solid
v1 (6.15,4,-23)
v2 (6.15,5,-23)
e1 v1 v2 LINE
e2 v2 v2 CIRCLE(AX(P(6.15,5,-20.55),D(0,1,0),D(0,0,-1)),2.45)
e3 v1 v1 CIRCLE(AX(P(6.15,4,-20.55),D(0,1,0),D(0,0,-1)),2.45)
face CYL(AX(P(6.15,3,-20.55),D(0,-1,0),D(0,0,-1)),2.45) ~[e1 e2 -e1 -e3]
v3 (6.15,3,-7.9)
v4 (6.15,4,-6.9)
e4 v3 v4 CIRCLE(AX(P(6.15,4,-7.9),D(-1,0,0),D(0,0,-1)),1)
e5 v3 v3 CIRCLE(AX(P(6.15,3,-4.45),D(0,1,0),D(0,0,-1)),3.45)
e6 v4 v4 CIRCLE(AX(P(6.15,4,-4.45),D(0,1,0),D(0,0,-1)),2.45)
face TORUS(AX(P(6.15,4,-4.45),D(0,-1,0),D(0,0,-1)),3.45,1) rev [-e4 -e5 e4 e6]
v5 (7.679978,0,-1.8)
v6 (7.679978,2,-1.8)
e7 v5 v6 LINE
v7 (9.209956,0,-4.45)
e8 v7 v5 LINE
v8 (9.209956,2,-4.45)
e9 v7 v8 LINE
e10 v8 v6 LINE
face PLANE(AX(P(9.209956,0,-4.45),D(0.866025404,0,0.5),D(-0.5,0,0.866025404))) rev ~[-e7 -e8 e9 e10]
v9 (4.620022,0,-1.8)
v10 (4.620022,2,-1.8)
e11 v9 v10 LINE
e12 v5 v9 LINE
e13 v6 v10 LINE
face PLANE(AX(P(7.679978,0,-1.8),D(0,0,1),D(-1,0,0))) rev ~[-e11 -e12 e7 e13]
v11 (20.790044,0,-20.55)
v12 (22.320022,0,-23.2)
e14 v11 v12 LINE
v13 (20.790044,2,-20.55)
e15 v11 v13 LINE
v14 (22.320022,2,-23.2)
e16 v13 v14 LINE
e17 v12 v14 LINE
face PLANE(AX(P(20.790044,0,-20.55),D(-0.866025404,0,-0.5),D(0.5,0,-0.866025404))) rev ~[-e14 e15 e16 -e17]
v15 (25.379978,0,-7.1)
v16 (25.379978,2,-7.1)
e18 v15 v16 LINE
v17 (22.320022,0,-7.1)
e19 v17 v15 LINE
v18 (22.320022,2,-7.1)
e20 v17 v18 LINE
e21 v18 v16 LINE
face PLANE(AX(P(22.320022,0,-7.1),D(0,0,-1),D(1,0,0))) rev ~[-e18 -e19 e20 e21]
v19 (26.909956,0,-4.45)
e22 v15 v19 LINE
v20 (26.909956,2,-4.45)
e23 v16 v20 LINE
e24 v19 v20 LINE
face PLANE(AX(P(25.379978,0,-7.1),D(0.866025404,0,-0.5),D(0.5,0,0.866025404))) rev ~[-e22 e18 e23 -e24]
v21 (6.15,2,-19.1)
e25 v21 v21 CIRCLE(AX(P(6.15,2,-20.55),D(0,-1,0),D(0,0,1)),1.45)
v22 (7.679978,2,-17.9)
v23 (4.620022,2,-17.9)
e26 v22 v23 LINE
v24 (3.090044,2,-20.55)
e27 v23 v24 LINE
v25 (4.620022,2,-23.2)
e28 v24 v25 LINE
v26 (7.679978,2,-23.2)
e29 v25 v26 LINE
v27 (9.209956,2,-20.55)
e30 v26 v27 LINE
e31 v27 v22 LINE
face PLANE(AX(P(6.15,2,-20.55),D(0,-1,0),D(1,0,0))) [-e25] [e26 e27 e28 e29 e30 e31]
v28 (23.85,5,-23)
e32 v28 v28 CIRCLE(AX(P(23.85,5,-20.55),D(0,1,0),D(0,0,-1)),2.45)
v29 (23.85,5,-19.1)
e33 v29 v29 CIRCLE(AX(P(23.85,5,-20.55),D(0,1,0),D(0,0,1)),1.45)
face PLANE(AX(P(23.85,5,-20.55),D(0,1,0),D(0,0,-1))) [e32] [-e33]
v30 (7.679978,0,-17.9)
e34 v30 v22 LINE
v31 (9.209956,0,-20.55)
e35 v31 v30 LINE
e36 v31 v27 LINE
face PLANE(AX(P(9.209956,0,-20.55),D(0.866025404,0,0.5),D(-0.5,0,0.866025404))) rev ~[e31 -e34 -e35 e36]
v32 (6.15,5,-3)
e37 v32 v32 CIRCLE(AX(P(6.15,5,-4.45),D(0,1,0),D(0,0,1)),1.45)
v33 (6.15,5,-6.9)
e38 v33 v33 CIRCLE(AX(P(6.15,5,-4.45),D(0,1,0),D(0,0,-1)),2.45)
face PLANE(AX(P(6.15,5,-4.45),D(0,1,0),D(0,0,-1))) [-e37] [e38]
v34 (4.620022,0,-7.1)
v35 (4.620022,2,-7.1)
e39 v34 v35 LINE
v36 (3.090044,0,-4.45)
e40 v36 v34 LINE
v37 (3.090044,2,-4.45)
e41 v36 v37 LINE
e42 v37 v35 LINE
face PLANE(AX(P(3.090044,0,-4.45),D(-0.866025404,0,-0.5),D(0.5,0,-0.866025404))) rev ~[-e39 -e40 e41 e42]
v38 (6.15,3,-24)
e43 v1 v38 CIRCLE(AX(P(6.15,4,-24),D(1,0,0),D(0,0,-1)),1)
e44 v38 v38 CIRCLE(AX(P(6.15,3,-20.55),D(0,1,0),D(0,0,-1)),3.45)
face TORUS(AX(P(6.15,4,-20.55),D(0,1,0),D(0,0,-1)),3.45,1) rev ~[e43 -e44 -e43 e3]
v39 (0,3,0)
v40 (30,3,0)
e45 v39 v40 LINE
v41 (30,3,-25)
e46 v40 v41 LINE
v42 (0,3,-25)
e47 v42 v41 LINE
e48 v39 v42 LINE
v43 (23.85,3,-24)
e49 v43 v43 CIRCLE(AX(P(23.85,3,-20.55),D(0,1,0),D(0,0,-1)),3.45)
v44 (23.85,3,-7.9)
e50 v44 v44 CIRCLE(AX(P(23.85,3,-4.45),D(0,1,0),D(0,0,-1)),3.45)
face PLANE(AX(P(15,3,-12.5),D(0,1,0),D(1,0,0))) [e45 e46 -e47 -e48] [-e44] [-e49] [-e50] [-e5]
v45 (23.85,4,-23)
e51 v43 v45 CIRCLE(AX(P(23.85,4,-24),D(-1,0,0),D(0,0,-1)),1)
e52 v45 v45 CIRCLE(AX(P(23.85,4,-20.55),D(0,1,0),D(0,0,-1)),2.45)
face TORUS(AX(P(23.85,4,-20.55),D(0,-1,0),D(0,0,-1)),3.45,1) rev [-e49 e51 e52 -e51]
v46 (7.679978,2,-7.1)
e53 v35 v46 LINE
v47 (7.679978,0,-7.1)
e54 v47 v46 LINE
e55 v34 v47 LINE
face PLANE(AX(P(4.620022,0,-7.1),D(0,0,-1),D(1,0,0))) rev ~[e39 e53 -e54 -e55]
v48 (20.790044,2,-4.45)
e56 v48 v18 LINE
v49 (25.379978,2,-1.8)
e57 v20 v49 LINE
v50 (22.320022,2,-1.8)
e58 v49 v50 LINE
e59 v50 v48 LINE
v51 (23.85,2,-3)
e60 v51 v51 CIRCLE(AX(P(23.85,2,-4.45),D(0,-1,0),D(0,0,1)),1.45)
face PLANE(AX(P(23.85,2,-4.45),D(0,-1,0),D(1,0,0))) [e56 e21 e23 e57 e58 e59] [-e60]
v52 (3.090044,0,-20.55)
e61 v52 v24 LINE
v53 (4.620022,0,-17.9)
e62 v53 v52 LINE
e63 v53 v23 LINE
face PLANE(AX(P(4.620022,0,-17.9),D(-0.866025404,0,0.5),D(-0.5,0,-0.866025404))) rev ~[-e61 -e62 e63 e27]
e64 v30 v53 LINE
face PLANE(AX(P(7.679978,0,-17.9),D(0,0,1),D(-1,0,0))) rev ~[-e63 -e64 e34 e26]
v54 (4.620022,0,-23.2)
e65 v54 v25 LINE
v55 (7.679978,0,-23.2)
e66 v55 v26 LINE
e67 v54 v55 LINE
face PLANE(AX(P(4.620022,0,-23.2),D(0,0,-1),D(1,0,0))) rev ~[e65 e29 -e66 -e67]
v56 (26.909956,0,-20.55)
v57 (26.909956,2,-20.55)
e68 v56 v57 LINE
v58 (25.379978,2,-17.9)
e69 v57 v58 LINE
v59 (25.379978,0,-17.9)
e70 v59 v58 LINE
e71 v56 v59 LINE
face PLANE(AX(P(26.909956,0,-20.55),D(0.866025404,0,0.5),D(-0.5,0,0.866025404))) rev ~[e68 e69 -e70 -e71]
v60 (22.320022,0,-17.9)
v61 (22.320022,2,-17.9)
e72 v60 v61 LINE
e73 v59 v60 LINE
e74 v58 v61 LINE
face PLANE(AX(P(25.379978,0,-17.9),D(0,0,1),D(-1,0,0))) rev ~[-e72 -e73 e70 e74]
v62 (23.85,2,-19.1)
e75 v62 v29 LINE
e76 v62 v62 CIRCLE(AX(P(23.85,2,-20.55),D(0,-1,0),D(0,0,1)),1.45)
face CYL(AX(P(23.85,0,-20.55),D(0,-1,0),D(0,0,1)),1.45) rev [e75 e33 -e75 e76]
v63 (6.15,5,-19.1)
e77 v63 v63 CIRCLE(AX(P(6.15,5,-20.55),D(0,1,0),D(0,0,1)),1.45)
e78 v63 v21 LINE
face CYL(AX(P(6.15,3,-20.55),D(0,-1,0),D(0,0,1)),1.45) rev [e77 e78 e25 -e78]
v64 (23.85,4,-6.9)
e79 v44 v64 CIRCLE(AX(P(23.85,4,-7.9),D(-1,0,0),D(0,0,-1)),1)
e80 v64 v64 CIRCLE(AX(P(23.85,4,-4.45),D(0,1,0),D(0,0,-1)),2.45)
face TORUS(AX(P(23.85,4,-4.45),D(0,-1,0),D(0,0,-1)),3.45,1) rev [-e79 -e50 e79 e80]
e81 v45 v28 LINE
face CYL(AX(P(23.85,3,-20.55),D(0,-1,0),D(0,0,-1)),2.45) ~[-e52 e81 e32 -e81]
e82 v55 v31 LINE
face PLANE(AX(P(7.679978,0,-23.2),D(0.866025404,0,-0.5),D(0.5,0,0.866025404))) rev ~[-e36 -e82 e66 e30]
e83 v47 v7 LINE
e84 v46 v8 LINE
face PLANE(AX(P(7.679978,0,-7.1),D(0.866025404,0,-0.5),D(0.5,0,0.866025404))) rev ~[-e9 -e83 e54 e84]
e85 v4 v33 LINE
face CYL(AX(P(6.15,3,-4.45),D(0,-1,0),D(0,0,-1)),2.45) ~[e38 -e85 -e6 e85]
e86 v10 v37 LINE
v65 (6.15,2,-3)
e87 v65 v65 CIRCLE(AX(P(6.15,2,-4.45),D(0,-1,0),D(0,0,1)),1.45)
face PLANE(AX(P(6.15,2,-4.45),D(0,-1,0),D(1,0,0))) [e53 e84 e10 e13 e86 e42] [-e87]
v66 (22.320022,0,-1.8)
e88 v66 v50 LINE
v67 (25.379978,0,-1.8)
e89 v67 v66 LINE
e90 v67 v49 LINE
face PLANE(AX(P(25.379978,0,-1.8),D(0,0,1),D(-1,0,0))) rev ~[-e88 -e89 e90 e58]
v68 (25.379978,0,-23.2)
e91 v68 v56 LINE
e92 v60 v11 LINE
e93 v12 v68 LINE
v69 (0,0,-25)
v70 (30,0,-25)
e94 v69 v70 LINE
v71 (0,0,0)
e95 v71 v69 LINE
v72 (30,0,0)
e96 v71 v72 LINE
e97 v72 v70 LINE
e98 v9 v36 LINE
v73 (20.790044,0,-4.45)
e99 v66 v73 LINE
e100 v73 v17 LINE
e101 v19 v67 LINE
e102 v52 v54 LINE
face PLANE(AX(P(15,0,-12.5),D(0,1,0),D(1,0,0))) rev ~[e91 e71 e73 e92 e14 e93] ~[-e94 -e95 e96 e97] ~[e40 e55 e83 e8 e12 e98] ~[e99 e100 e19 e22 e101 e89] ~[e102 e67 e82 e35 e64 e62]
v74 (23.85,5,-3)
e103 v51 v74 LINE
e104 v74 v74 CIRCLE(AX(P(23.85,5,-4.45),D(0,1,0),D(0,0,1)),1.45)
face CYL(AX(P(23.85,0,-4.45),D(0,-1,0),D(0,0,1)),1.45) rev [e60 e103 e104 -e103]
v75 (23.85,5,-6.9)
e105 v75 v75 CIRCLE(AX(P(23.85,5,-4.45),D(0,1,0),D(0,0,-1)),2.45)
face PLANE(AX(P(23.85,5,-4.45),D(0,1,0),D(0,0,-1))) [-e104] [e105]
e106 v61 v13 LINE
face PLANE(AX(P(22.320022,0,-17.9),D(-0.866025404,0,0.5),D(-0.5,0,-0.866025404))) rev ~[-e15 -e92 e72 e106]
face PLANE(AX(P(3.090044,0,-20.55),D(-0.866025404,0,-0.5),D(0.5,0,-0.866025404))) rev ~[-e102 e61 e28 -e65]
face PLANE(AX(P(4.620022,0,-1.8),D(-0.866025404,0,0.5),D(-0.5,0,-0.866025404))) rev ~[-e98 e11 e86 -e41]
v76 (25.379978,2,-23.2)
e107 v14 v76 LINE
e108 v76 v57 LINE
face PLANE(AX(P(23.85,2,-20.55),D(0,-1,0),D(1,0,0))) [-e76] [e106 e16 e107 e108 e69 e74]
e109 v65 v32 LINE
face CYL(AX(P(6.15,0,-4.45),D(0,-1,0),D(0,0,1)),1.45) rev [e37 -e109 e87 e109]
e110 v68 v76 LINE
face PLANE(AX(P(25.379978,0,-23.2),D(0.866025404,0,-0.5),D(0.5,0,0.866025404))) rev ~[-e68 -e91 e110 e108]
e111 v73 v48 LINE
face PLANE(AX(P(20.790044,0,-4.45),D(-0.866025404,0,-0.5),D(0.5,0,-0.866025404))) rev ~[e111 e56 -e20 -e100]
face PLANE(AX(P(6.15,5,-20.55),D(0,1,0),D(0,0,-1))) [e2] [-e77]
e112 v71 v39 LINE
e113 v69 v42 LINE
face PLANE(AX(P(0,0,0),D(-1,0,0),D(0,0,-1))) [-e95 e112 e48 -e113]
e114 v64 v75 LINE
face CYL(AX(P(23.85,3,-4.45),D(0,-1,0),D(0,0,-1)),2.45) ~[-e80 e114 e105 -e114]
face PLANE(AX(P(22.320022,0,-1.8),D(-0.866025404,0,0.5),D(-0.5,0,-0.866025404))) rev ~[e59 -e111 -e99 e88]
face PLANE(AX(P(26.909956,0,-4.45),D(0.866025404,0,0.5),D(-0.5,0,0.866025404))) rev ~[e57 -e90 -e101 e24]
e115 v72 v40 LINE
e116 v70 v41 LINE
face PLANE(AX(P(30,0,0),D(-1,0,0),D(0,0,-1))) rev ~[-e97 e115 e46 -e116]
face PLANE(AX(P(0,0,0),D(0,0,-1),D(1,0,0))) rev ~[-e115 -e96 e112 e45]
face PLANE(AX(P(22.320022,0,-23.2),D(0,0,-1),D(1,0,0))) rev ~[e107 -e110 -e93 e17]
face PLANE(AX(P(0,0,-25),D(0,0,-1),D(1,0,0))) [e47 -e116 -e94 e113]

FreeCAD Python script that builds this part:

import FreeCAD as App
import Part
import Sketcher

V = App.Vector
Q = App.Units.Quantity


def edges_at(feature, points):
    """Names of the edges that pass closest to the given points."""
    edges = feature.Shape.Edges
    near = lambda p: min(range(len(edges)), key=lambda i: edges[i].distToShape(Part.Vertex(*p))[0])
    return sorted({f"Edge{near(p) + 1}" for p in points})

doc = App.newDocument("Part")
body = doc.addObject("PartDesign::Body", "Body")

sketch1 = body.newObject("Sketcher::SketchObject", "Sketch")
sketch1.AttachmentSupport = (doc.getObject("XZ_Plane"), [""])
sketch1.MapMode = "FlatFace"
sketch1.addGeometry([
    Part.LineSegment(V(0, -25, 0), V(0, 0, 0)),
    Part.LineSegment(V(0, 0, 0), V(30, 0, 0)),
    Part.LineSegment(V(30, 0, 0), V(30, -25, 0)),
    Part.LineSegment(V(30, -25, 0), V(0, -25, 0)),
    Part.Circle(V(6.2, -4.5, 0), V(0, 0, 1), 1.4),
    Part.Circle(V(23.9, -4.5, 0), V(0, 0, 1), 1.4),
    Part.Circle(V(6.2, -20.6, 0), V(0, 0, 1), 1.4),
    Part.Circle(V(23.9, -20.6, 0), V(0, 0, 1), 1.4),
], False)
sketch1.addConstraint([
    Sketcher.Constraint("Coincident", 0, 2, 1, 1),
    Sketcher.Constraint("Coincident", 1, 2, 2, 1),
    Sketcher.Constraint("Coincident", 2, 2, 3, 1),
    Sketcher.Constraint("Coincident", 3, 2, 0, 1),
    Sketcher.Constraint("Vertical", 0),
    Sketcher.Constraint("Horizontal", 1),
    Sketcher.Constraint("Vertical", 2),
    Sketcher.Constraint("Horizontal", 3),
    Sketcher.Constraint("Coincident", 0, 2, -1, 1),
    Sketcher.Constraint("Equal", 4, 5),
    Sketcher.Constraint("Equal", 5, 6),
    Sketcher.Constraint("Equal", 6, 7),
    Sketcher.Constraint("Horizontal", 4, 3, 5, 3),
    Sketcher.Constraint("Horizontal", 6, 3, 7, 3),
    Sketcher.Constraint("Vertical", 4, 3, 6, 3),
    Sketcher.Constraint("Vertical", 5, 3, 7, 3),
    Sketcher.Constraint("Diameter", 4, Q("2.9 mm")),
    Sketcher.Constraint("DistanceX", 1, 1, 1, 2, Q("30 mm")),
    Sketcher.Constraint("DistanceY", 0, 1, 0, 2, Q("25 mm")),
    Sketcher.Constraint("DistanceX", 4, 3, 5, 3, Q("17.7 mm")),
    Sketcher.Constraint("DistanceY", 6, 3, 4, 3, Q("16.1 mm")),
    Sketcher.Constraint("DistanceX", -1, 1, 4, 3, Q("6.15 mm")),
    Sketcher.Constraint("DistanceY", 4, 3, -1, 1, Q("4.45 mm")),
])
pad1 = body.newObject("PartDesign::Pad", "Pad")
pad1.Profile = sketch1
pad1.Length = 3
pad1.Reversed = True

sketch2 = body.newObject("Sketcher::SketchObject", "Sketch001")
sketch2.AttachmentSupport = (doc.getObject("XZ_Plane"), [""])
sketch2.MapMode = "FlatFace"
sketch2.AttachmentOffset = App.Placement(V(0, 0, -3), App.Rotation())
sketch2.addGeometry([
    Part.Circle(V(6.2, -20.6, 0), V(0, 0, 1), 2.5),
    Part.Circle(V(6.2, -20.6, 0), V(0, 0, 1), 1.4),
    Part.Circle(V(23.9, -20.6, 0), V(0, 0, 1), 2.5),
    Part.Circle(V(23.9, -20.6, 0), V(0, 0, 1), 1.4),
    Part.Circle(V(6.2, -4.5, 0), V(0, 0, 1), 2.5),
    Part.Circle(V(6.2, -4.5, 0), V(0, 0, 1), 1.4),
    Part.Circle(V(23.9, -4.5, 0), V(0, 0, 1), 2.5),
    Part.Circle(V(23.9, -4.5, 0), V(0, 0, 1), 1.4),
], False)
sketch2.addConstraint([
    Sketcher.Constraint("Coincident", 1, 3, 0, 3),
    Sketcher.Constraint("Coincident", 3, 3, 2, 3),
    Sketcher.Constraint("Coincident", 5, 3, 4, 3),
    Sketcher.Constraint("Coincident", 7, 3, 6, 3),
    Sketcher.Constraint("Equal", 0, 2),
    Sketcher.Constraint("Equal", 1, 3),
    Sketcher.Constraint("Equal", 2, 4),
    Sketcher.Constraint("Equal", 3, 5),
    Sketcher.Constraint("Equal", 4, 6),
    Sketcher.Constraint("Equal", 5, 7),
    Sketcher.Constraint("Horizontal", 1, 3, 2, 3),
    Sketcher.Constraint("Horizontal", 5, 3, 6, 3),
    Sketcher.Constraint("Vertical", 1, 3, 4, 3),
    Sketcher.Constraint("Vertical", 3, 3, 6, 3),
    Sketcher.Constraint("Diameter", 0, Q("4.9 mm")),
    Sketcher.Constraint("Diameter", 1, Q("2.9 mm")),
    Sketcher.Constraint("DistanceX", 0, 3, 2, 3, Q("17.7 mm")),
    Sketcher.Constraint("DistanceY", 0, 3, 4, 3, Q("16.1 mm")),
    Sketcher.Constraint("DistanceX", -1, 1, 0, 3, Q("6.15 mm")),
    Sketcher.Constraint("DistanceY", 0, 3, -1, 1, Q("20.55 mm")),
])
pad2 = body.newObject("PartDesign::Pad", "Pad001")
pad2.Profile = sketch2
pad2.Length = 2
pad2.Reversed = True

sketch3 = body.newObject("Sketcher::SketchObject", "Sketch002")
sketch3.AttachmentSupport = (doc.getObject("XZ_Plane"), [""])
sketch3.MapMode = "FlatFace"
sketch3.addGeometry([
    Part.LineSegment(V(7.7, -7.1, 0), V(9.2, -4.5, 0)),
    Part.LineSegment(V(9.2, -4.5, 0), V(7.7, -1.8, 0)),
    Part.LineSegment(V(7.7, -1.8, 0), V(4.6, -1.8, 0)),
    Part.LineSegment(V(4.6, -1.8, 0), V(3.1, -4.5, 0)),
    Part.LineSegment(V(3.1, -4.5, 0), V(4.6, -7.1, 0)),
    Part.LineSegment(V(4.6, -7.1, 0), V(7.7, -7.1, 0)),
    Part.LineSegment(V(25.4, -7.1, 0), V(26.9, -4.5, 0)),
    Part.LineSegment(V(26.9, -4.5, 0), V(25.4, -1.8, 0)),
    Part.LineSegment(V(25.4, -1.8, 0), V(22.3, -1.8, 0)),
    Part.LineSegment(V(22.3, -1.8, 0), V(20.8, -4.5, 0)),
    Part.LineSegment(V(20.8, -4.5, 0), V(22.3, -7.1, 0)),
    Part.LineSegment(V(22.3, -7.1, 0), V(25.4, -7.1, 0)),
    Part.LineSegment(V(25.4, -23.2, 0), V(26.9, -20.6, 0)),
    Part.LineSegment(V(26.9, -20.6, 0), V(25.4, -17.9, 0)),
    Part.LineSegment(V(25.4, -17.9, 0), V(22.3, -17.9, 0)),
    Part.LineSegment(V(22.3, -17.9, 0), V(20.8, -20.6, 0)),
    Part.LineSegment(V(20.8, -20.6, 0), V(22.3, -23.2, 0)),
    Part.LineSegment(V(22.3, -23.2, 0), V(25.4, -23.2, 0)),
    Part.LineSegment(V(7.7, -23.2, 0), V(9.2, -20.6, 0)),
    Part.LineSegment(V(9.2, -20.6, 0), V(7.7, -17.9, 0)),
    Part.LineSegment(V(7.7, -17.9, 0), V(4.6, -17.9, 0)),
    Part.LineSegment(V(4.6, -17.9, 0), V(3.1, -20.6, 0)),
    Part.LineSegment(V(3.1, -20.6, 0), V(4.6, -23.2, 0)),
    Part.LineSegment(V(4.6, -23.2, 0), V(7.7, -23.2, 0)),
], False)
sketch3.addConstraint([
    Sketcher.Constraint("Coincident", 0, 2, 1, 1),
    Sketcher.Constraint("Coincident", 1, 2, 2, 1),
    Sketcher.Constraint("Coincident", 2, 2, 3, 1),
    Sketcher.Constraint("Coincident", 3, 2, 4, 1),
    Sketcher.Constraint("Coincident", 4, 2, 5, 1),
    Sketcher.Constraint("Coincident", 5, 2, 0, 1),
    Sketcher.Constraint("Coincident", 6, 2, 7, 1),
    Sketcher.Constraint("Coincident", 7, 2, 8, 1),
    Sketcher.Constraint("Coincident", 8, 2, 9, 1),
    Sketcher.Constraint("Coincident", 9, 2, 10, 1),
    Sketcher.Constraint("Coincident", 10, 2, 11, 1),
    Sketcher.Constraint("Coincident", 11, 2, 6, 1),
    Sketcher.Constraint("Coincident", 12, 2, 13, 1),
    Sketcher.Constraint("Coincident", 13, 2, 14, 1),
    Sketcher.Constraint("Coincident", 14, 2, 15, 1),
    Sketcher.Constraint("Coincident", 15, 2, 16, 1),
    Sketcher.Constraint("Coincident", 16, 2, 17, 1),
    Sketcher.Constraint("Coincident", 17, 2, 12, 1),
    Sketcher.Constraint("Coincident", 18, 2, 19, 1),
    Sketcher.Constraint("Coincident", 19, 2, 20, 1),
    Sketcher.Constraint("Coincident", 20, 2, 21, 1),
    Sketcher.Constraint("Coincident", 21, 2, 22, 1),
    Sketcher.Constraint("Coincident", 22, 2, 23, 1),
    Sketcher.Constraint("Coincident", 23, 2, 18, 1),
    Sketcher.Constraint("Horizontal", 2),
    Sketcher.Constraint("Horizontal", 5),
    Sketcher.Constraint("Horizontal", 8),
    Sketcher.Constraint("Horizontal", 11),
    Sketcher.Constraint("Horizontal", 14),
    Sketcher.Constraint("Horizontal", 17),
    Sketcher.Constraint("Horizontal", 20),
    Sketcher.Constraint("Horizontal", 23),
    Sketcher.Constraint("Parallel", 0, 3),
    Sketcher.Constraint("Parallel", 1, 4),
    Sketcher.Constraint("Parallel", 3, 6),
    Sketcher.Constraint("Parallel", 4, 7),
    Sketcher.Constraint("Parallel", 6, 9),
    Sketcher.Constraint("Parallel", 7, 10),
    Sketcher.Constraint("Parallel", 9, 12),
    Sketcher.Constraint("Parallel", 10, 13),
    Sketcher.Constraint("Parallel", 12, 15),
    Sketcher.Constraint("Parallel", 13, 16),
    Sketcher.Constraint("Parallel", 15, 18),
    Sketcher.Constraint("Parallel", 16, 19),
    Sketcher.Constraint("Parallel", 18, 21),
    Sketcher.Constraint("Parallel", 19, 22),
    Sketcher.Constraint("Horizontal", 0, 2, 3, 2),
    Sketcher.Constraint("Horizontal", 3, 2, 6, 2),
    Sketcher.Constraint("Horizontal", 2, 2, 7, 2),
    Sketcher.Constraint("Horizontal", 6, 2, 9, 2),
    Sketcher.Constraint("Horizontal", 5, 2, 10, 2),
    Sketcher.Constraint("Horizontal", 12, 2, 15, 2),
    Sketcher.Constraint("Horizontal", 15, 2, 18, 2),
    Sketcher.Constraint("Horizontal", 14, 2, 19, 2),
    Sketcher.Constraint("Horizontal", 18, 2, 21, 2),
    Sketcher.Constraint("Horizontal", 17, 2, 22, 2),
    Sketcher.Constraint("Vertical", 2, 2, 4, 2),
    Sketcher.Constraint("Vertical", 1, 2, 5, 2),
    Sketcher.Constraint("Vertical", 6, 2, 12, 2),
    Sketcher.Constraint("Vertical", 11, 2, 13, 2),
    Sketcher.Constraint("Vertical", 10, 2, 14, 2),
    Sketcher.Constraint("Vertical", 14, 2, 16, 2),
    Sketcher.Constraint("Vertical", 0, 2, 18, 2),
    Sketcher.Constraint("Vertical", 4, 2, 20, 2),
    Sketcher.Constraint("Equal", 5, 8),
    Sketcher.Constraint("Angle", 0, Q("60 deg")),
    Sketcher.Constraint("DistanceY", 1, 2, -1, 1, Q("1.8 mm")),
    Sketcher.Constraint("DistanceY", 4, 2, -1, 1, Q("7.1 mm")),
    Sketcher.Constraint("DistanceY", 13, 2, -1, 1, Q("17.9 mm")),
    Sketcher.Constraint("DistanceX", 0, 2, 6, 2, Q("17.7 mm")),
    Sketcher.Constraint("DistanceX", 2, 2, 2, 1, Q("3.059956 mm")),
    Sketcher.Constraint("DistanceX", -1, 1, 1, 2, Q("7.679978 mm")),
])
pocket1 = body.newObject("PartDesign::Pocket", "Pocket")
pocket1.Profile = sketch3
pocket1.Length = 2
doc.recompute()

fillet = body.newObject("PartDesign::Fillet", "Fillet")
fillet.Base = (pocket1, edges_at(pocket1, [
    (6.15, 3, -18.1),
    (23.85, 3, -18.1),
    (6.15, 3, -2),
    (23.85, 3, -2),
]))
fillet.Radius = 1

doc.recompute()
